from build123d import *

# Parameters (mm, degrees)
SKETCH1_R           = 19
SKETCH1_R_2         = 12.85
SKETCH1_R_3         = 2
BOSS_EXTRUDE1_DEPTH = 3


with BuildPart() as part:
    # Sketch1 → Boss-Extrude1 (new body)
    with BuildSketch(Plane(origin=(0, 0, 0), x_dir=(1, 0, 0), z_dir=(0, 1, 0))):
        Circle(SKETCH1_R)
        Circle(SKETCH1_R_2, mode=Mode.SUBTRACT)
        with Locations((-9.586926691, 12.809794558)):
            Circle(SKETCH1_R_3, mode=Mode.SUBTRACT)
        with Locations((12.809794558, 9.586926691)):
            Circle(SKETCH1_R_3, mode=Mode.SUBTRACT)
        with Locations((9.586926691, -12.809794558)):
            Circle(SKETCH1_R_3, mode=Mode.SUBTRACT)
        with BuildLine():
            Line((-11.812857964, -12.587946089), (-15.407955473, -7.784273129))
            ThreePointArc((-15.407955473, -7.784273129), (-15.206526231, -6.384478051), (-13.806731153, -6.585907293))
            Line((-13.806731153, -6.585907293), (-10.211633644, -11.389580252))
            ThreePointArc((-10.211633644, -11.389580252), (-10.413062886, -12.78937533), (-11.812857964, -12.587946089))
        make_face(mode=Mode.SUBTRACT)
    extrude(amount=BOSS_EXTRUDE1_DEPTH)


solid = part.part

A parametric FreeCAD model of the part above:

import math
import FreeCAD as App
import Part
import Sketcher

V = App.Vector
Q = App.Units.Quantity

doc = App.newDocument("Part")
body = doc.addObject("PartDesign::Body", "Body")

# Sketch on XZ plane
sketch1 = body.newObject("Sketcher::SketchObject", "Sketch")
sketch1.AttachmentSupport = (doc.getObject("XZ_Plane"), [""])
sketch1.MapMode = "FlatFace"
sketch1.addGeometry([
    Part.Circle(V(0, 0, 0), V(0, 0, 1), 19),  # 0
    Part.ArcOfCircle(Part.Circle(V(-11.012246, 11.988763, 0), V(0, 0, 1), 1), math.radians(-36.811401), math.radians(143.188599)),  # 1
    Part.LineSegment(V(-11.812858, 12.587946, 0), V(-15.407955, 7.784273, 0)),  # 2
    Part.ArcOfCircle(Part.Circle(V(-14.607343, 7.18509, 0), V(0, 0, 1), 1), math.radians(143.188599), math.radians(323.188599)),  # 3
    Part.LineSegment(V(-13.806731, 6.585907, 0), V(-10.211634, 11.38958, 0)),  # 4
    Part.Circle(V(9.586927, 12.809795, 0), V(0, 0, 1), 2),  # 5
    Part.Circle(V(0, 0, 0), V(0, 0, 1), 12.85),  # 6
    Part.Circle(V(-9.586927, -12.809795, 0), V(0, 0, 1), 2),  # 7
    Part.Circle(V(12.809795, -9.586927, 0), V(0, 0, 1), 2),  # 8
], False)
sketch1.addConstraint([
    Sketcher.Constraint("Tangent", 1, 2, 2, 1),
    Sketcher.Constraint("Tangent", 2, 2, 3, 1),
    Sketcher.Constraint("Tangent", 3, 2, 4, 1),
    Sketcher.Constraint("Tangent", 4, 2, 1, 1),
    Sketcher.Constraint("Coincident", 0, 3, -1, 1),
    Sketcher.Constraint("Coincident", 6, 3, -1, 1),
    Sketcher.Constraint("Equal", 1, 3),
    Sketcher.Constraint("Equal", 5, 7),
    Sketcher.Constraint("Equal", 7, 8),
    Sketcher.Constraint("Symmetric", 5, 3, 7, 3, -1, 1),
    Sketcher.Constraint("Diameter", 0, Q("38 mm")),
    Sketcher.Constraint("Diameter", 5, Q("4 mm")),
    Sketcher.Constraint("Radius", 1, Q("1 mm")),
    Sketcher.Constraint("Diameter", 6, Q("25.7 mm")),
    Sketcher.Constraint("Distance", 2, Q("6 mm")),
    Sketcher.Constraint("DistanceY", -1, 1, 3, 3, Q("7.18509 mm")),
    Sketcher.Constraint("DistanceX", 3, 2, -1, 1, Q("13.806731 mm")),
    Sketcher.Constraint("DistanceY", -1, 1, 4, 2, Q("11.38958 mm")),
    Sketcher.Constraint("DistanceY", 1, 3, 5, 3, Q("0.821031 mm")),
    Sketcher.Constraint("DistanceX", 3, 3, 5, 3, Q("24.19427 mm")),
    Sketcher.Constraint("DistanceY", 8, 3, 5, 3, Q("22.396721 mm")),
    Sketcher.Constraint("DistanceX", 7, 3, 8, 3, Q("22.396721 mm")),
])
pad1 = body.newObject("PartDesign::Pad", "Pad")
pad1.Profile = sketch1
pad1.Length = 3
pad1.Reversed = True

doc.recompute()
